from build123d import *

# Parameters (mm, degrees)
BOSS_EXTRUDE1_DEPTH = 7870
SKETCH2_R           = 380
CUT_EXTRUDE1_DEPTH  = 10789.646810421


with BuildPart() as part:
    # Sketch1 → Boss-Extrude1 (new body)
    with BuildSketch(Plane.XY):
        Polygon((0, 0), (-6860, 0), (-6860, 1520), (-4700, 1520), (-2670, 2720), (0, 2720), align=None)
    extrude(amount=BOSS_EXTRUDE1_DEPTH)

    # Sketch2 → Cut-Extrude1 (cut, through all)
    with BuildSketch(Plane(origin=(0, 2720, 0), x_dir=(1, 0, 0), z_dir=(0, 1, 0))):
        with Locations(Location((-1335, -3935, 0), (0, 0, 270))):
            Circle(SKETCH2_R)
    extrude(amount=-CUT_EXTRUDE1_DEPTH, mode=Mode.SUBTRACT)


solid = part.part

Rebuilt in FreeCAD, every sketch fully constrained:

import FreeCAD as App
import Part
import Sketcher


def add_polygon(sketch, points):
    """Adds a closed chain of lines whose ends are joined by coincident constraints."""
    first, n = sketch.GeometryCount, len(points)
    for a, b in zip(points, points[1:] + points[:1]):
        sketch.addGeometry(Part.LineSegment(App.Vector(*a, 0), App.Vector(*b, 0)), False)
    for i in range(n):
        sketch.addConstraint(Sketcher.Constraint("Coincident", first + i, 2, first + (i + 1) % n, 1))

doc = App.newDocument("Part")
body = doc.addObject("PartDesign::Body", "Body")

# Sketch on XY plane
sketch1 = body.newObject("Sketcher::SketchObject", "Sketch")
sketch1.AttachmentSupport = (doc.getObject("XY_Plane"), [""])
sketch1.MapMode = "FlatFace"
add_polygon(sketch1, [(-6860, 0), (0, 0), (0, 2720), (-2670, 2720), (-4700, 1520), (-6860, 1520)])  # lines 0-5
sketch1.addConstraint(Sketcher.Constraint("Horizontal", 0))
sketch1.addConstraint(Sketcher.Constraint("Vertical", 1))
sketch1.addConstraint(Sketcher.Constraint("Horizontal", 2))
sketch1.addConstraint(Sketcher.Constraint("Horizontal", 4))
sketch1.addConstraint(Sketcher.Constraint("Vertical", 5))
sketch1.addConstraint(Sketcher.Constraint("Coincident", 0, 2, -1, 1))
sketch1.addConstraint(Sketcher.Constraint("DistanceX", 0, 1, 0, 2, 6860.0))
sketch1.addConstraint(Sketcher.Constraint("DistanceX", 2, 2, 2, 1, 2670.0))
sketch1.addConstraint(Sketcher.Constraint("DistanceX", 4, 2, 4, 1, 2160.0))
sketch1.addConstraint(Sketcher.Constraint("DistanceY", 1, 1, 1, 2, 2720.0))
sketch1.addConstraint(Sketcher.Constraint("DistanceY", 5, 2, 5, 1, 1520.0))
pad1 = body.newObject("PartDesign::Pad", "Pad")
pad1.Profile = sketch1
pad1.Length = 7870

# Sketch on XZ plane
sketch2 = body.newObject("Sketcher::SketchObject", "Sketch001")
sketch2.AttachmentSupport = (doc.getObject("XZ_Plane"), [""])
sketch2.MapMode = "FlatFace"
sketch2.AttachmentOffset = App.Placement(App.Vector(0, 0, -2720), App.Rotation())
sketch2.addGeometry(Part.Circle(App.Vector(-1335, 3935, 0), App.Vector(0, 0, 1), 380), False)
sketch2.addConstraint(Sketcher.Constraint("Diameter", 0, 760.0))
sketch2.addConstraint(Sketcher.Constraint("DistanceX", 0, 3, -1, 1, 1335.0))
sketch2.addConstraint(Sketcher.Constraint("DistanceY", -1, 1, 0, 3, 3935.0))
pocket1 = body.newObject("PartDesign::Pocket", "Pocket")
pocket1.Profile = sketch2
pocket1.Type = "ThroughAll"
pocket1.Reversed = True

doc.recompute()
